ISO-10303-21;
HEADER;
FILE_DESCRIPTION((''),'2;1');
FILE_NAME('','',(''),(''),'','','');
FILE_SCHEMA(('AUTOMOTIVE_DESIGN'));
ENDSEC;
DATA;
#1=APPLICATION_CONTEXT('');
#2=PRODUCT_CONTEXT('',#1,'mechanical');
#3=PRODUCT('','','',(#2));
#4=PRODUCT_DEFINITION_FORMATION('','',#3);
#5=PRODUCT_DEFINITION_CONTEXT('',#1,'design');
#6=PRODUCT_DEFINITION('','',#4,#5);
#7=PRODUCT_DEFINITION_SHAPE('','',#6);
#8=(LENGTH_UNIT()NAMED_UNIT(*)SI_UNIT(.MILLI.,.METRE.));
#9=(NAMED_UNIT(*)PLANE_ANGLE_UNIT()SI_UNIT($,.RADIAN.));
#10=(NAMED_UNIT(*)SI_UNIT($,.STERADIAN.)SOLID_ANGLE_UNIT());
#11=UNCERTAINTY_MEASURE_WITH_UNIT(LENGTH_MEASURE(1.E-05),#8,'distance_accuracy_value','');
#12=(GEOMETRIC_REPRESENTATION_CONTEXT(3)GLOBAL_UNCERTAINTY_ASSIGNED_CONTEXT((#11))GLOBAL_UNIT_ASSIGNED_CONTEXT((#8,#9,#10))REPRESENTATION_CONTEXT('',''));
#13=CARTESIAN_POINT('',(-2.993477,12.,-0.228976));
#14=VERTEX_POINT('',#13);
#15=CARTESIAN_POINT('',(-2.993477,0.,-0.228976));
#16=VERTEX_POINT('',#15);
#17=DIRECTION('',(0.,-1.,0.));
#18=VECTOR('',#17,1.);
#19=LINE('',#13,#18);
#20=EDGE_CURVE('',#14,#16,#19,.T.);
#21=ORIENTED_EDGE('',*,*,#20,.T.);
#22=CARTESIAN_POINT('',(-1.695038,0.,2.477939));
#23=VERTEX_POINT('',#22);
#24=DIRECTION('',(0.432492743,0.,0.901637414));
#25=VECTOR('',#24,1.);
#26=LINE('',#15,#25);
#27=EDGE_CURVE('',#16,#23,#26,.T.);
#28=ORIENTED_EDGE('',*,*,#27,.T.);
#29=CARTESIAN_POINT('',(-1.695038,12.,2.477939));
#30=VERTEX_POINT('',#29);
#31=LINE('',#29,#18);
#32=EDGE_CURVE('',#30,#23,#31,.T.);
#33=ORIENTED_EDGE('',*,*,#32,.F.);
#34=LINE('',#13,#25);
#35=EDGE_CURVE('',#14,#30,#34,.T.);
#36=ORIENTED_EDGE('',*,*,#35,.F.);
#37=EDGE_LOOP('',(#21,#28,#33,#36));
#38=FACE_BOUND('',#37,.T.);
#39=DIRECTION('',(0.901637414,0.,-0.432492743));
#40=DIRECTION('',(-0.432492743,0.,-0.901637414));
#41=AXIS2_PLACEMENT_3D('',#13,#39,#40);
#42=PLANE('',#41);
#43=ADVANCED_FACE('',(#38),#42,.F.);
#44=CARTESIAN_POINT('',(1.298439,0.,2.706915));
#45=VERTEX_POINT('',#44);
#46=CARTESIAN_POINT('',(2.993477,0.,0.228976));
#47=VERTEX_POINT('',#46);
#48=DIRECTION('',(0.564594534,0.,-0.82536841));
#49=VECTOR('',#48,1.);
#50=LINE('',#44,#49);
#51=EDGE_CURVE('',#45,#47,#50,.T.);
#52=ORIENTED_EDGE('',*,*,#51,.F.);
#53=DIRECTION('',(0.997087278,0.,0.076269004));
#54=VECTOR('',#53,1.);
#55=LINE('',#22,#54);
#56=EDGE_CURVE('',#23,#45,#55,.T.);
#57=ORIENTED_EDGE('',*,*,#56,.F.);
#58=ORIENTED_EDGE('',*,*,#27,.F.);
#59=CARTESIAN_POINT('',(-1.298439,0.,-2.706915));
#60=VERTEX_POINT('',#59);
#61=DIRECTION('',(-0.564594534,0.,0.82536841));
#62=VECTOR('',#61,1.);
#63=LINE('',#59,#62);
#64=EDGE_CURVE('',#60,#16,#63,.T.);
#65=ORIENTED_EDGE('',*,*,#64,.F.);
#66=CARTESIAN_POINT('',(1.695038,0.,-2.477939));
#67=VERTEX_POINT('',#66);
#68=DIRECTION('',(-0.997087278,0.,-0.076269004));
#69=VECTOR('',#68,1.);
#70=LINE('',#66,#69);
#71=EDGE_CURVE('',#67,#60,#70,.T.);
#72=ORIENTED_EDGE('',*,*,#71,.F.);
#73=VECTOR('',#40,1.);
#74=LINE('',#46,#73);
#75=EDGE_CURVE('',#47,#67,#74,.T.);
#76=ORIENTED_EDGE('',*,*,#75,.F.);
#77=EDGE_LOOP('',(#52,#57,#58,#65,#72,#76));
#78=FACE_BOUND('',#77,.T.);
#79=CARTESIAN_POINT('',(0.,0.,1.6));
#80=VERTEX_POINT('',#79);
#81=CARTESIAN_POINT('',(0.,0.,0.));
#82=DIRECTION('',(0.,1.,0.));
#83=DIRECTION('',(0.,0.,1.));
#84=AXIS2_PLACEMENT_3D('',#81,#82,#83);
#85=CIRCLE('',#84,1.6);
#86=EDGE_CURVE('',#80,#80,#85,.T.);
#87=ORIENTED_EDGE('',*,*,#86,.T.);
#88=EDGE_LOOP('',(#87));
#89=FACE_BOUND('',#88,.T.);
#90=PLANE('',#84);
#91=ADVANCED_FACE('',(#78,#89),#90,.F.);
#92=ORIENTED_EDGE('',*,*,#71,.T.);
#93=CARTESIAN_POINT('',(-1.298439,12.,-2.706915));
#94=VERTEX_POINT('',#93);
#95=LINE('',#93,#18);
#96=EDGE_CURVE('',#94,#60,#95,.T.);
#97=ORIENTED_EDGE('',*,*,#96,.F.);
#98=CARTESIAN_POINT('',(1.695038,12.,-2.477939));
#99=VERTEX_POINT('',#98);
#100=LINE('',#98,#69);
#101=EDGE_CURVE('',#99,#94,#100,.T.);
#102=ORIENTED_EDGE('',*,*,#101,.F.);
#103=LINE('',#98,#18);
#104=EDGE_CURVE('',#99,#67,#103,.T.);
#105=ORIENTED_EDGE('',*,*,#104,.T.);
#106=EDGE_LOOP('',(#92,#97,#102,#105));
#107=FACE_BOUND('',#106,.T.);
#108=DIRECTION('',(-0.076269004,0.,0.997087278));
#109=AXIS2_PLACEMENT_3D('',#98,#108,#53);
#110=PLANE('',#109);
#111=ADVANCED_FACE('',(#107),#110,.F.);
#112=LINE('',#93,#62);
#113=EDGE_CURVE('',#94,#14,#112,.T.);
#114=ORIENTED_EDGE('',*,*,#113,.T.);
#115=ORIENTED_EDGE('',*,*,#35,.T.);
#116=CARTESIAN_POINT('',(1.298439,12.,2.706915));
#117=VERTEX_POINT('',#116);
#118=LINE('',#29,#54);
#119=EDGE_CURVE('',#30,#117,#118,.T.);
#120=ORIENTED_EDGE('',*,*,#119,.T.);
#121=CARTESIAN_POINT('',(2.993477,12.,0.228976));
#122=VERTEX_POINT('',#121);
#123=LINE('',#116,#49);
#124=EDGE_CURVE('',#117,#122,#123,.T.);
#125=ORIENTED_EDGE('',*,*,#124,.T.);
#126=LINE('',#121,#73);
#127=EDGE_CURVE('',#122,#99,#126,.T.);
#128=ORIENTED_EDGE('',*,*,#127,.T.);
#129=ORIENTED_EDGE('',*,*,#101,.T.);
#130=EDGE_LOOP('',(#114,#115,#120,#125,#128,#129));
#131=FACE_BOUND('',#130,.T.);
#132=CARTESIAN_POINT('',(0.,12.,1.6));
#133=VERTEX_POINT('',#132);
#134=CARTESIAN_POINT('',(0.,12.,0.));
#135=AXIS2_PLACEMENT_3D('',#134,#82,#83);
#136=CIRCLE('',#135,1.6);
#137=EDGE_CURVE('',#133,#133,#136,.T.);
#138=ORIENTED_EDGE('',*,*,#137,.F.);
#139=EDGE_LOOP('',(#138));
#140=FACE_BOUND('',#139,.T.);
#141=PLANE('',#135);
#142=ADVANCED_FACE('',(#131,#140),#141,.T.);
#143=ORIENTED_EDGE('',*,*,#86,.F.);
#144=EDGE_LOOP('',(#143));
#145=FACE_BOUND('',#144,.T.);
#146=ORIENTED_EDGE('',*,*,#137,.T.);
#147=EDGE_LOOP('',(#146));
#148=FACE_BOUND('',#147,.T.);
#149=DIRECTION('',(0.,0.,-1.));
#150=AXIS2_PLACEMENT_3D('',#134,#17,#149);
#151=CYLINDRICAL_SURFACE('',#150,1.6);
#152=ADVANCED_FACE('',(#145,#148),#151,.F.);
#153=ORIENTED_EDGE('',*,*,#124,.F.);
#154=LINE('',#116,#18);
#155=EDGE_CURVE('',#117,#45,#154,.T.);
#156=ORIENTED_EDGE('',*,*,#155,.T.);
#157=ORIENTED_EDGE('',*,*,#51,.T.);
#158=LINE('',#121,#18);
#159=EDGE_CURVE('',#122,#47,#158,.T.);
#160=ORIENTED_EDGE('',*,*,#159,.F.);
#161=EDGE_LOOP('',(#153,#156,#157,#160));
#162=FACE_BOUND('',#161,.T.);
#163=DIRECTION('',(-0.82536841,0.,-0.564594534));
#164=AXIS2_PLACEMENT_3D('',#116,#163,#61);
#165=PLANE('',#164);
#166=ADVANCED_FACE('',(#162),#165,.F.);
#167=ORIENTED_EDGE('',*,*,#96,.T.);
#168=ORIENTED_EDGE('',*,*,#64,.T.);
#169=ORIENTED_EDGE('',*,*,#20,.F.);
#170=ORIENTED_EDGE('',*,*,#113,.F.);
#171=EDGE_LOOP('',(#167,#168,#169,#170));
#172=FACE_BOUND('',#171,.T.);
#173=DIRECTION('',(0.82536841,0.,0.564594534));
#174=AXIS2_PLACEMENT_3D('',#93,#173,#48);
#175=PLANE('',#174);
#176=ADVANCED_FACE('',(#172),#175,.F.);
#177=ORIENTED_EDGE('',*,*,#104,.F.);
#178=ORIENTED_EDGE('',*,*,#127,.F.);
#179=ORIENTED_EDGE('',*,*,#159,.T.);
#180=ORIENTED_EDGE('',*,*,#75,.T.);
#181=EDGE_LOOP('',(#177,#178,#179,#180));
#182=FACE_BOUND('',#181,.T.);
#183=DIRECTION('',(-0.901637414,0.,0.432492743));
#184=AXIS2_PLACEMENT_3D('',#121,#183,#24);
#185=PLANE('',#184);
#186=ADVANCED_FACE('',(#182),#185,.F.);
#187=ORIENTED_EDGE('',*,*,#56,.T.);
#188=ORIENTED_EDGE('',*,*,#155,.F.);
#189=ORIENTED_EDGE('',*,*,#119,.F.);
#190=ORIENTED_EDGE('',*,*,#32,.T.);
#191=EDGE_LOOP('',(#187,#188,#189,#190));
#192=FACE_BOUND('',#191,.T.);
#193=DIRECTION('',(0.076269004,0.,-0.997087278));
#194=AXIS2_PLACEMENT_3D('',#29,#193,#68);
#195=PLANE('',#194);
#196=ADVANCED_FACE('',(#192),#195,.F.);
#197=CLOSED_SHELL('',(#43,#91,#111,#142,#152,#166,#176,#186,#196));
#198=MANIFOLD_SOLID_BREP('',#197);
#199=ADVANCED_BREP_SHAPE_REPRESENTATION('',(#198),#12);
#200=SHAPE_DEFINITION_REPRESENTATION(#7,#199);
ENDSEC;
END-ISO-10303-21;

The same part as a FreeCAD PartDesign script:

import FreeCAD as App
import Part
import Sketcher

V = App.Vector

doc = App.newDocument("Part")
params = doc.addObject("Spreadsheet::Sheet", "Params")
for row, (alias, value) in enumerate([
    ("sketch1_diameter", "3.2 mm"),
    ("pad1_length", "12 mm"),
], start=1):
    params.set(f"A{row}", alias)
    params.set(f"B{row}", "=" + value)
    params.setAlias(f"B{row}", alias)

body = doc.addObject("PartDesign::Body", "Body")

sketch1 = body.newObject("Sketcher::SketchObject", "Sketch")
sketch1.AttachmentSupport = (doc.getObject("XZ_Plane"), [""])
sketch1.MapMode = "FlatFace"
sketch1.addGeometry(Part.LineSegment(V(1.3, 2.7, 0), V(3, 0.2, 0)), False)
sketch1.addGeometry(Part.LineSegment(V(3, 0.2, 0), V(1.7, -2.5, 0)), False)
sketch1.addGeometry(Part.LineSegment(V(1.7, -2.5, 0), V(-1.3, -2.7, 0)), False)
sketch1.addGeometry(Part.LineSegment(V(-1.3, -2.7, 0), V(-3, -0.2, 0)), False)
sketch1.addGeometry(Part.LineSegment(V(-3, -0.2, 0), V(-1.7, 2.5, 0)), False)
sketch1.addGeometry(Part.LineSegment(V(-1.7, 2.5, 0), V(1.3, 2.7, 0)), False)
sketch1.addGeometry(Part.Circle(V(0, 0, 0), V(0, 0, 1), 1.6), False)
sketch1.addConstraint(Sketcher.Constraint("Coincident", 0, 2, 1, 1))
sketch1.addConstraint(Sketcher.Constraint("Coincident", 1, 2, 2, 1))
sketch1.addConstraint(Sketcher.Constraint("Coincident", 2, 2, 3, 1))
sketch1.addConstraint(Sketcher.Constraint("Coincident", 3, 2, 4, 1))
sketch1.addConstraint(Sketcher.Constraint("Coincident", 4, 2, 5, 1))
sketch1.addConstraint(Sketcher.Constraint("Coincident", 5, 2, 0, 1))
sketch1.addConstraint(Sketcher.Constraint("Coincident", 6, 3, -1, 1))
sketch1.addConstraint(Sketcher.Constraint("Symmetric", 0, 2, 3, 2, -1, 1))
sketch1.addConstraint(Sketcher.Constraint("Symmetric", 1, 2, 4, 2, -1, 1))
sketch1.addConstraint(Sketcher.Constraint("Symmetric", 2, 2, 5, 2, -1, 1))
sketch1.addConstraint(Sketcher.Constraint("Equal", 0, 1))
sketch1.addConstraint(Sketcher.Constraint("Equal", 1, 2))
sketch1.addConstraint(Sketcher.Constraint("Diameter", 6, 3.2))
sketch1.addConstraint(Sketcher.Constraint("DistanceX", 4, 2, 2, 2, 0.396599))
sketch1.addConstraint(Sketcher.Constraint("Distance", 0, 3.002221))
sketch1.addConstraint(Sketcher.Constraint("DistanceY", 1, 2, -1, 1, 2.477939))
sketch1.addConstraint(Sketcher.Constraint("DistanceX", 2, 2, -1, 1, 1.298439))
sketch1.setExpression("Constraints[12]", "Params.sketch1_diameter")
pad1 = body.newObject("PartDesign::Pad", "Pad")
pad1.Profile = sketch1
pad1.setExpression("Length", "Params.pad1_length")
pad1.Reversed = True

doc.recompute()
